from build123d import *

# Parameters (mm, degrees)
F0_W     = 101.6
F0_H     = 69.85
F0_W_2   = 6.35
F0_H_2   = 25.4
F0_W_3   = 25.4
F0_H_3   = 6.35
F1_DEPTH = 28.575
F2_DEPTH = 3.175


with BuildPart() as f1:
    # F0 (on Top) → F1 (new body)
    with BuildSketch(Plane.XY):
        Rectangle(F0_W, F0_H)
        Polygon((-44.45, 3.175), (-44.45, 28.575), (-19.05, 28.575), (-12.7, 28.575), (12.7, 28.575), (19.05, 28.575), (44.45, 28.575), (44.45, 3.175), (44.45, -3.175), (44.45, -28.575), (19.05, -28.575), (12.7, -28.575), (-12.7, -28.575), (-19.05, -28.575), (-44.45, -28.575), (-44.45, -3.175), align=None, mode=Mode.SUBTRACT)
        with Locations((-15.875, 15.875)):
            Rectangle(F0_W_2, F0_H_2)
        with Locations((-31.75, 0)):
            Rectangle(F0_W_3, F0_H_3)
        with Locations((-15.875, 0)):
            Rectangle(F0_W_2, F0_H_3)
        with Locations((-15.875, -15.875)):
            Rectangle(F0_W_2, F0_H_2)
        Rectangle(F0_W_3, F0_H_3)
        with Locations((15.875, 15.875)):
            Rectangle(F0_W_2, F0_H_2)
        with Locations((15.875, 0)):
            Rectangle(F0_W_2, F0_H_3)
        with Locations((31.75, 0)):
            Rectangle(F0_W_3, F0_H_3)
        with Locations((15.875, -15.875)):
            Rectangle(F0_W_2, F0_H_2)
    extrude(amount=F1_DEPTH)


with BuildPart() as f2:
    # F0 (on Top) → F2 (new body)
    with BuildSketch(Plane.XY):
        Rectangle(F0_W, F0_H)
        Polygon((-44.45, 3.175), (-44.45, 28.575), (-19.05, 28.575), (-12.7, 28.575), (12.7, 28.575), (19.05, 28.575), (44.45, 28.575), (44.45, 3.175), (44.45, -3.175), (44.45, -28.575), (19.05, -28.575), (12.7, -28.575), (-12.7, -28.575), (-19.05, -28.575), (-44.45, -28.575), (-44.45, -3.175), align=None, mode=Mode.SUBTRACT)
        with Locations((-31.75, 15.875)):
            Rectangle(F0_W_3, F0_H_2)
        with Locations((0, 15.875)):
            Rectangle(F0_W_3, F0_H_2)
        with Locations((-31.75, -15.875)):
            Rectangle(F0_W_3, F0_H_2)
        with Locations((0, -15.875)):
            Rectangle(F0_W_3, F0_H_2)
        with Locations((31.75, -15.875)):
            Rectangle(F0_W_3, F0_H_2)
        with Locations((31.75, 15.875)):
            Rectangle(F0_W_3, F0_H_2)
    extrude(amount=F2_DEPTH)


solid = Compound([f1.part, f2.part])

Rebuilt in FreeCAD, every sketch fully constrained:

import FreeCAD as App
import Part
import Sketcher
from FreeCAD import Vector
Q = App.Units.Quantity

doc = App.newDocument("Part")
body = doc.addObject("PartDesign::Body", "Body")

# Sketch on XY plane
sketch1 = body.newObject("Sketcher::SketchObject", "Sketch")
sketch1.AttachmentSupport = (doc.getObject("XY_Plane"), [""])
sketch1.MapMode = "FlatFace"
sketch1.addGeometry(Part.LineSegment(Vector(-51, 35, 0), Vector(-51, -35, 0)), False)
sketch1.addGeometry(Part.LineSegment(Vector(-51, -35, 0), Vector(51, -35, 0)), False)
sketch1.addGeometry(Part.LineSegment(Vector(51, -35, 0), Vector(51, 35, 0)), False)
sketch1.addGeometry(Part.LineSegment(Vector(51, 35, 0), Vector(-51, 35, 0)), False)
sketch1.addGeometry(Part.LineSegment(Vector(-44, -3, 0), Vector(-19, -3, 0)), False)
sketch1.addGeometry(Part.LineSegment(Vector(-19, -3, 0), Vector(-19, -29, 0)), False)
sketch1.addGeometry(Part.LineSegment(Vector(-19, -29, 0), Vector(-44, -29, 0)), False)
sketch1.addGeometry(Part.LineSegment(Vector(-44, -29, 0), Vector(-44, -3, 0)), False)
sketch1.addGeometry(Part.LineSegment(Vector(-19, 3, 0), Vector(-44, 3, 0)), False)
sketch1.addGeometry(Part.LineSegment(Vector(-44, 3, 0), Vector(-44, 29, 0)), False)
sketch1.addGeometry(Part.LineSegment(Vector(-44, 29, 0), Vector(-19, 29, 0)), False)
sketch1.addGeometry(Part.LineSegment(Vector(-19, 29, 0), Vector(-19, 3, 0)), False)
sketch1.addGeometry(Part.LineSegment(Vector(-13, -3, 0), Vector(13, -3, 0)), False)
sketch1.addGeometry(Part.LineSegment(Vector(13, -3, 0), Vector(13, -29, 0)), False)
sketch1.addGeometry(Part.LineSegment(Vector(13, -29, 0), Vector(-13, -29, 0)), False)
sketch1.addGeometry(Part.LineSegment(Vector(-13, -29, 0), Vector(-13, -3, 0)), False)
sketch1.addGeometry(Part.LineSegment(Vector(19, -3, 0), Vector(44, -3, 0)), False)
sketch1.addGeometry(Part.LineSegment(Vector(44, -3, 0), Vector(44, -29, 0)), False)
sketch1.addGeometry(Part.LineSegment(Vector(44, -29, 0), Vector(19, -29, 0)), False)
sketch1.addGeometry(Part.LineSegment(Vector(19, -29, 0), Vector(19, -3, 0)), False)
sketch1.addGeometry(Part.LineSegment(Vector(19, 3, 0), Vector(19, 29, 0)), False)
sketch1.addGeometry(Part.LineSegment(Vector(19, 29, 0), Vector(44, 29, 0)), False)
sketch1.addGeometry(Part.LineSegment(Vector(44, 29, 0), Vector(44, 3, 0)), False)
sketch1.addGeometry(Part.LineSegment(Vector(44, 3, 0), Vector(19, 3, 0)), False)
sketch1.addGeometry(Part.LineSegment(Vector(13, 29, 0), Vector(13, 3, 0)), False)
sketch1.addGeometry(Part.LineSegment(Vector(13, 3, 0), Vector(-13, 3, 0)), False)
sketch1.addGeometry(Part.LineSegment(Vector(-13, 3, 0), Vector(-13, 29, 0)), False)
sketch1.addGeometry(Part.LineSegment(Vector(-13, 29, 0), Vector(13, 29, 0)), False)
sketch1.addConstraint(Sketcher.Constraint("Coincident", 0, 2, 1, 1))
sketch1.addConstraint(Sketcher.Constraint("Coincident", 1, 2, 2, 1))
sketch1.addConstraint(Sketcher.Constraint("Coincident", 2, 2, 3, 1))
sketch1.addConstraint(Sketcher.Constraint("Coincident", 3, 2, 0, 1))
sketch1.addConstraint(Sketcher.Constraint("Coincident", 4, 2, 5, 1))
sketch1.addConstraint(Sketcher.Constraint("Coincident", 5, 2, 6, 1))
sketch1.addConstraint(Sketcher.Constraint("Coincident", 6, 2, 7, 1))
sketch1.addConstraint(Sketcher.Constraint("Coincident", 7, 2, 4, 1))
sketch1.addConstraint(Sketcher.Constraint("Coincident", 8, 2, 9, 1))
sketch1.addConstraint(Sketcher.Constraint("Coincident", 9, 2, 10, 1))
sketch1.addConstraint(Sketcher.Constraint("Coincident", 10, 2, 11, 1))
sketch1.addConstraint(Sketcher.Constraint("Coincident", 11, 2, 8, 1))
sketch1.addConstraint(Sketcher.Constraint("Coincident", 12, 2, 13, 1))
sketch1.addConstraint(Sketcher.Constraint("Coincident", 13, 2, 14, 1))
sketch1.addConstraint(Sketcher.Constraint("Coincident", 14, 2, 15, 1))
sketch1.addConstraint(Sketcher.Constraint("Coincident", 15, 2, 12, 1))
sketch1.addConstraint(Sketcher.Constraint("Coincident", 16, 2, 17, 1))
sketch1.addConstraint(Sketcher.Constraint("Coincident", 17, 2, 18, 1))
sketch1.addConstraint(Sketcher.Constraint("Coincident", 18, 2, 19, 1))
sketch1.addConstraint(Sketcher.Constraint("Coincident", 19, 2, 16, 1))
sketch1.addConstraint(Sketcher.Constraint("Coincident", 20, 2, 21, 1))
sketch1.addConstraint(Sketcher.Constraint("Coincident", 21, 2, 22, 1))
sketch1.addConstraint(Sketcher.Constraint("Coincident", 22, 2, 23, 1))
sketch1.addConstraint(Sketcher.Constraint("Coincident", 23, 2, 20, 1))
sketch1.addConstraint(Sketcher.Constraint("Coincident", 24, 2, 25, 1))
sketch1.addConstraint(Sketcher.Constraint("Coincident", 25, 2, 26, 1))
sketch1.addConstraint(Sketcher.Constraint("Coincident", 26, 2, 27, 1))
sketch1.addConstraint(Sketcher.Constraint("Coincident", 27, 2, 24, 1))
sketch1.addConstraint(Sketcher.Constraint("Vertical", 0))
sketch1.addConstraint(Sketcher.Constraint("Horizontal", 1))
sketch1.addConstraint(Sketcher.Constraint("Vertical", 2))
sketch1.addConstraint(Sketcher.Constraint("Horizontal", 3))
sketch1.addConstraint(Sketcher.Constraint("Horizontal", 4))
sketch1.addConstraint(Sketcher.Constraint("Vertical", 5))
sketch1.addConstraint(Sketcher.Constraint("Horizontal", 6))
sketch1.addConstraint(Sketcher.Constraint("Vertical", 7))
sketch1.addConstraint(Sketcher.Constraint("Horizontal", 8))
sketch1.addConstraint(Sketcher.Constraint("Vertical", 9))
sketch1.addConstraint(Sketcher.Constraint("Horizontal", 10))
sketch1.addConstraint(Sketcher.Constraint("Vertical", 11))
sketch1.addConstraint(Sketcher.Constraint("Horizontal", 12))
sketch1.addConstraint(Sketcher.Constraint("Vertical", 13))
sketch1.addConstraint(Sketcher.Constraint("Horizontal", 14))
sketch1.addConstraint(Sketcher.Constraint("Vertical", 15))
sketch1.addConstraint(Sketcher.Constraint("Horizontal", 16))
sketch1.addConstraint(Sketcher.Constraint("Vertical", 17))
sketch1.addConstraint(Sketcher.Constraint("Horizontal", 18))
sketch1.addConstraint(Sketcher.Constraint("Vertical", 19))
sketch1.addConstraint(Sketcher.Constraint("Vertical", 20))
sketch1.addConstraint(Sketcher.Constraint("Horizontal", 21))
sketch1.addConstraint(Sketcher.Constraint("Vertical", 22))
sketch1.addConstraint(Sketcher.Constraint("Horizontal", 23))
sketch1.addConstraint(Sketcher.Constraint("Vertical", 24))
sketch1.addConstraint(Sketcher.Constraint("Horizontal", 25))
sketch1.addConstraint(Sketcher.Constraint("Vertical", 26))
sketch1.addConstraint(Sketcher.Constraint("Horizontal", 27))
sketch1.addConstraint(Sketcher.Constraint("Symmetric", 0, 2, 2, 2, -1, 1))
sketch1.addConstraint(Sketcher.Constraint("Symmetric", 8, 2, 16, 2, -1, 1))
sketch1.addConstraint(Sketcher.Constraint("Symmetric", 10, 2, 18, 2, -1, 1))
sketch1.addConstraint(Sketcher.Constraint("Symmetric", 5, 2, 20, 2, -1, 1))
sketch1.addConstraint(Sketcher.Constraint("Symmetric", 7, 2, 22, 2, -1, 1))
sketch1.addConstraint(Sketcher.Constraint("Symmetric", 15, 2, 24, 2, -1, 1))
sketch1.addConstraint(Sketcher.Constraint("Symmetric", 13, 2, 26, 2, -1, 1))
sketch1.addConstraint(Sketcher.Constraint("Symmetric", 7, 2, 16, 2, -2))
sketch1.addConstraint(Sketcher.Constraint("Symmetric", 5, 2, 18, 2, -2))
sketch1.addConstraint(Sketcher.Constraint("Horizontal", 7, 2, 12, 2))
sketch1.addConstraint(Sketcher.Constraint("Horizontal", 6, 2, 13, 2))
sketch1.addConstraint(Sketcher.Constraint("Vertical", 13, 2, 24, 2))
sketch1.addConstraint(Sketcher.Constraint("Equal", 10, 12))
sketch1.addConstraint(Sketcher.Constraint("Equal", 27, 5))
sketch1.addConstraint(Sketcher.Constraint("DistanceX", 1, 1, 1, 2, Q("4 in")))
sketch1.addConstraint(Sketcher.Constraint("DistanceX", 4, 1, 4, 2, Q("1 in")))
sketch1.addConstraint(Sketcher.Constraint("DistanceY", 0, 2, 0, 1, Q("2.75 in")))
sketch1.addConstraint(Sketcher.Constraint("DistanceY", 4, 2, 3, 2, Q("1.5 in")))
sketch1.addConstraint(Sketcher.Constraint("DistanceX", 10, 2, 20, 2, Q("1.5 in")))
pad1 = body.newObject("PartDesign::Pad", "Pad")
pad1.Profile = sketch1
pad1.Length = Q("1.125 in")
body2 = doc.addObject("PartDesign::Body", "Body001")

# Sketch on XY plane
sketch2 = body2.newObject("Sketcher::SketchObject", "Sketch001")
sketch2.AttachmentSupport = (doc.getObject("XY_Plane001"), [""])
sketch2.MapMode = "FlatFace"
sketch2.addGeometry(Part.LineSegment(Vector(-51, 35, 0), Vector(-51, -35, 0)), False)
sketch2.addGeometry(Part.LineSegment(Vector(-51, -35, 0), Vector(51, -35, 0)), False)
sketch2.addGeometry(Part.LineSegment(Vector(51, -35, 0), Vector(51, 35, 0)), False)
sketch2.addGeometry(Part.LineSegment(Vector(51, 35, 0), Vector(-51, 35, 0)), False)
sketch2.addGeometry(Part.LineSegment(Vector(-44, -3, 0), Vector(-44, 3, 0)), False)
sketch2.addGeometry(Part.LineSegment(Vector(-44, 3, 0), Vector(-19, 3, 0)), False)
sketch2.addGeometry(Part.LineSegment(Vector(-19, 3, 0), Vector(-19, 29, 0)), False)
sketch2.addGeometry(Part.LineSegment(Vector(-19, 29, 0), Vector(-13, 29, 0)), False)
sketch2.addGeometry(Part.LineSegment(Vector(-13, 29, 0), Vector(-13, 3, 0)), False)
sketch2.addGeometry(Part.LineSegment(Vector(-13, 3, 0), Vector(13, 3, 0)), False)
sketch2.addGeometry(Part.LineSegment(Vector(13, 3, 0), Vector(13, 29, 0)), False)
sketch2.addGeometry(Part.LineSegment(Vector(13, 29, 0), Vector(19, 29, 0)), False)
sketch2.addGeometry(Part.LineSegment(Vector(19, 29, 0), Vector(19, 3, 0)), False)
sketch2.addGeometry(Part.LineSegment(Vector(19, 3, 0), Vector(44, 3, 0)), False)
sketch2.addGeometry(Part.LineSegment(Vector(44, 3, 0), Vector(44, -3, 0)), False)
sketch2.addGeometry(Part.LineSegment(Vector(44, -3, 0), Vector(19, -3, 0)), False)
sketch2.addGeometry(Part.LineSegment(Vector(19, -3, 0), Vector(19, -29, 0)), False)
sketch2.addGeometry(Part.LineSegment(Vector(19, -29, 0), Vector(13, -29, 0)), False)
sketch2.addGeometry(Part.LineSegment(Vector(13, -29, 0), Vector(13, -3, 0)), False)
sketch2.addGeometry(Part.LineSegment(Vector(13, -3, 0), Vector(-13, -3, 0)), False)
sketch2.addGeometry(Part.LineSegment(Vector(-13, -3, 0), Vector(-13, -29, 0)), False)
sketch2.addGeometry(Part.LineSegment(Vector(-13, -29, 0), Vector(-19, -29, 0)), False)
sketch2.addGeometry(Part.LineSegment(Vector(-19, -29, 0), Vector(-19, -3, 0)), False)
sketch2.addGeometry(Part.LineSegment(Vector(-19, -3, 0), Vector(-44, -3, 0)), False)
sketch2.addConstraint(Sketcher.Constraint("Coincident", 0, 2, 1, 1))
sketch2.addConstraint(Sketcher.Constraint("Coincident", 1, 2, 2, 1))
sketch2.addConstraint(Sketcher.Constraint("Coincident", 2, 2, 3, 1))
sketch2.addConstraint(Sketcher.Constraint("Coincident", 3, 2, 0, 1))
sketch2.addConstraint(Sketcher.Constraint("Coincident", 4, 2, 5, 1))
sketch2.addConstraint(Sketcher.Constraint("Coincident", 5, 2, 6, 1))
sketch2.addConstraint(Sketcher.Constraint("Coincident", 6, 2, 7, 1))
sketch2.addConstraint(Sketcher.Constraint("Coincident", 7, 2, 8, 1))
sketch2.addConstraint(Sketcher.Constraint("Coincident", 8, 2, 9, 1))
sketch2.addConstraint(Sketcher.Constraint("Coincident", 9, 2, 10, 1))
sketch2.addConstraint(Sketcher.Constraint("Coincident", 10, 2, 11, 1))
sketch2.addConstraint(Sketcher.Constraint("Coincident", 11, 2, 12, 1))
sketch2.addConstraint(Sketcher.Constraint("Coincident", 12, 2, 13, 1))
sketch2.addConstraint(Sketcher.Constraint("Coincident", 13, 2, 14, 1))
sketch2.addConstraint(Sketcher.Constraint("Coincident", 14, 2, 15, 1))
sketch2.addConstraint(Sketcher.Constraint("Coincident", 15, 2, 16, 1))
sketch2.addConstraint(Sketcher.Constraint("Coincident", 16, 2, 17, 1))
sketch2.addConstraint(Sketcher.Constraint("Coincident", 17, 2, 18, 1))
sketch2.addConstraint(Sketcher.Constraint("Coincident", 18, 2, 19, 1))
sketch2.addConstraint(Sketcher.Constraint("Coincident", 19, 2, 20, 1))
sketch2.addConstraint(Sketcher.Constraint("Coincident", 20, 2, 21, 1))
sketch2.addConstraint(Sketcher.Constraint("Coincident", 21, 2, 22, 1))
sketch2.addConstraint(Sketcher.Constraint("Coincident", 22, 2, 23, 1))
sketch2.addConstraint(Sketcher.Constraint("Coincident", 23, 2, 4, 1))
sketch2.addConstraint(Sketcher.Constraint("Vertical", 0))
sketch2.addConstraint(Sketcher.Constraint("Horizontal", 1))
sketch2.addConstraint(Sketcher.Constraint("Vertical", 2))
sketch2.addConstraint(Sketcher.Constraint("Horizontal", 3))
sketch2.addConstraint(Sketcher.Constraint("Vertical", 4))
sketch2.addConstraint(Sketcher.Constraint("Horizontal", 5))
sketch2.addConstraint(Sketcher.Constraint("Vertical", 6))
sketch2.addConstraint(Sketcher.Constraint("Horizontal", 7))
sketch2.addConstraint(Sketcher.Constraint("Vertical", 8))
sketch2.addConstraint(Sketcher.Constraint("Horizontal", 9))
sketch2.addConstraint(Sketcher.Constraint("Vertical", 10))
sketch2.addConstraint(Sketcher.Constraint("Horizontal", 11))
sketch2.addConstraint(Sketcher.Constraint("Vertical", 12))
sketch2.addConstraint(Sketcher.Constraint("Horizontal", 13))
sketch2.addConstraint(Sketcher.Constraint("Vertical", 14))
sketch2.addConstraint(Sketcher.Constraint("Horizontal", 15))
sketch2.addConstraint(Sketcher.Constraint("Vertical", 16))
sketch2.addConstraint(Sketcher.Constraint("Horizontal", 17))
sketch2.addConstraint(Sketcher.Constraint("Vertical", 18))
sketch2.addConstraint(Sketcher.Constraint("Horizontal", 19))
sketch2.addConstraint(Sketcher.Constraint("Vertical", 20))
sketch2.addConstraint(Sketcher.Constraint("Horizontal", 21))
sketch2.addConstraint(Sketcher.Constraint("Vertical", 22))
sketch2.addConstraint(Sketcher.Constraint("Horizontal", 23))
sketch2.addConstraint(Sketcher.Constraint("Symmetric", 0, 2, 2, 2, -1, 1))
sketch2.addConstraint(Sketcher.Constraint("Symmetric", 4, 2, 14, 2, -1, 1))
sketch2.addConstraint(Sketcher.Constraint("Symmetric", 6, 2, 16, 2, -1, 1))
sketch2.addConstraint(Sketcher.Constraint("Symmetric", 8, 2, 18, 2, -1, 1))
sketch2.addConstraint(Sketcher.Constraint("Symmetric", 10, 2, 20, 2, -1, 1))
sketch2.addConstraint(Sketcher.Constraint("Symmetric", 12, 2, 22, 2, -1, 1))
sketch2.addConstraint(Sketcher.Constraint("Symmetric", 7, 2, 10, 2, -2))
sketch2.addConstraint(Sketcher.Constraint("Symmetric", 5, 2, 12, 2, -2))
sketch2.addConstraint(Sketcher.Constraint("Horizontal", 5, 2, 8, 2))
sketch2.addConstraint(Sketcher.Constraint("Equal", 5, 9))
sketch2.addConstraint(Sketcher.Constraint("Equal", 21, 4))
sketch2.addConstraint(Sketcher.Constraint("Equal", 23, 6))
sketch2.addConstraint(Sketcher.Constraint("DistanceX", 1, 1, 1, 2, Q("4 in")))
sketch2.addConstraint(Sketcher.Constraint("DistanceX", 5, 1, 5, 2, Q("1 in")))
sketch2.addConstraint(Sketcher.Constraint("DistanceX", 7, 1, 7, 2, Q("0.25 in")))
sketch2.addConstraint(Sketcher.Constraint("DistanceY", 0, 2, 0, 1, Q("2.75 in")))
pad2 = body2.newObject("PartDesign::Pad", "Pad001")
pad2.Profile = sketch2
pad2.Length = Q("0.125 in")

doc.recompute()
